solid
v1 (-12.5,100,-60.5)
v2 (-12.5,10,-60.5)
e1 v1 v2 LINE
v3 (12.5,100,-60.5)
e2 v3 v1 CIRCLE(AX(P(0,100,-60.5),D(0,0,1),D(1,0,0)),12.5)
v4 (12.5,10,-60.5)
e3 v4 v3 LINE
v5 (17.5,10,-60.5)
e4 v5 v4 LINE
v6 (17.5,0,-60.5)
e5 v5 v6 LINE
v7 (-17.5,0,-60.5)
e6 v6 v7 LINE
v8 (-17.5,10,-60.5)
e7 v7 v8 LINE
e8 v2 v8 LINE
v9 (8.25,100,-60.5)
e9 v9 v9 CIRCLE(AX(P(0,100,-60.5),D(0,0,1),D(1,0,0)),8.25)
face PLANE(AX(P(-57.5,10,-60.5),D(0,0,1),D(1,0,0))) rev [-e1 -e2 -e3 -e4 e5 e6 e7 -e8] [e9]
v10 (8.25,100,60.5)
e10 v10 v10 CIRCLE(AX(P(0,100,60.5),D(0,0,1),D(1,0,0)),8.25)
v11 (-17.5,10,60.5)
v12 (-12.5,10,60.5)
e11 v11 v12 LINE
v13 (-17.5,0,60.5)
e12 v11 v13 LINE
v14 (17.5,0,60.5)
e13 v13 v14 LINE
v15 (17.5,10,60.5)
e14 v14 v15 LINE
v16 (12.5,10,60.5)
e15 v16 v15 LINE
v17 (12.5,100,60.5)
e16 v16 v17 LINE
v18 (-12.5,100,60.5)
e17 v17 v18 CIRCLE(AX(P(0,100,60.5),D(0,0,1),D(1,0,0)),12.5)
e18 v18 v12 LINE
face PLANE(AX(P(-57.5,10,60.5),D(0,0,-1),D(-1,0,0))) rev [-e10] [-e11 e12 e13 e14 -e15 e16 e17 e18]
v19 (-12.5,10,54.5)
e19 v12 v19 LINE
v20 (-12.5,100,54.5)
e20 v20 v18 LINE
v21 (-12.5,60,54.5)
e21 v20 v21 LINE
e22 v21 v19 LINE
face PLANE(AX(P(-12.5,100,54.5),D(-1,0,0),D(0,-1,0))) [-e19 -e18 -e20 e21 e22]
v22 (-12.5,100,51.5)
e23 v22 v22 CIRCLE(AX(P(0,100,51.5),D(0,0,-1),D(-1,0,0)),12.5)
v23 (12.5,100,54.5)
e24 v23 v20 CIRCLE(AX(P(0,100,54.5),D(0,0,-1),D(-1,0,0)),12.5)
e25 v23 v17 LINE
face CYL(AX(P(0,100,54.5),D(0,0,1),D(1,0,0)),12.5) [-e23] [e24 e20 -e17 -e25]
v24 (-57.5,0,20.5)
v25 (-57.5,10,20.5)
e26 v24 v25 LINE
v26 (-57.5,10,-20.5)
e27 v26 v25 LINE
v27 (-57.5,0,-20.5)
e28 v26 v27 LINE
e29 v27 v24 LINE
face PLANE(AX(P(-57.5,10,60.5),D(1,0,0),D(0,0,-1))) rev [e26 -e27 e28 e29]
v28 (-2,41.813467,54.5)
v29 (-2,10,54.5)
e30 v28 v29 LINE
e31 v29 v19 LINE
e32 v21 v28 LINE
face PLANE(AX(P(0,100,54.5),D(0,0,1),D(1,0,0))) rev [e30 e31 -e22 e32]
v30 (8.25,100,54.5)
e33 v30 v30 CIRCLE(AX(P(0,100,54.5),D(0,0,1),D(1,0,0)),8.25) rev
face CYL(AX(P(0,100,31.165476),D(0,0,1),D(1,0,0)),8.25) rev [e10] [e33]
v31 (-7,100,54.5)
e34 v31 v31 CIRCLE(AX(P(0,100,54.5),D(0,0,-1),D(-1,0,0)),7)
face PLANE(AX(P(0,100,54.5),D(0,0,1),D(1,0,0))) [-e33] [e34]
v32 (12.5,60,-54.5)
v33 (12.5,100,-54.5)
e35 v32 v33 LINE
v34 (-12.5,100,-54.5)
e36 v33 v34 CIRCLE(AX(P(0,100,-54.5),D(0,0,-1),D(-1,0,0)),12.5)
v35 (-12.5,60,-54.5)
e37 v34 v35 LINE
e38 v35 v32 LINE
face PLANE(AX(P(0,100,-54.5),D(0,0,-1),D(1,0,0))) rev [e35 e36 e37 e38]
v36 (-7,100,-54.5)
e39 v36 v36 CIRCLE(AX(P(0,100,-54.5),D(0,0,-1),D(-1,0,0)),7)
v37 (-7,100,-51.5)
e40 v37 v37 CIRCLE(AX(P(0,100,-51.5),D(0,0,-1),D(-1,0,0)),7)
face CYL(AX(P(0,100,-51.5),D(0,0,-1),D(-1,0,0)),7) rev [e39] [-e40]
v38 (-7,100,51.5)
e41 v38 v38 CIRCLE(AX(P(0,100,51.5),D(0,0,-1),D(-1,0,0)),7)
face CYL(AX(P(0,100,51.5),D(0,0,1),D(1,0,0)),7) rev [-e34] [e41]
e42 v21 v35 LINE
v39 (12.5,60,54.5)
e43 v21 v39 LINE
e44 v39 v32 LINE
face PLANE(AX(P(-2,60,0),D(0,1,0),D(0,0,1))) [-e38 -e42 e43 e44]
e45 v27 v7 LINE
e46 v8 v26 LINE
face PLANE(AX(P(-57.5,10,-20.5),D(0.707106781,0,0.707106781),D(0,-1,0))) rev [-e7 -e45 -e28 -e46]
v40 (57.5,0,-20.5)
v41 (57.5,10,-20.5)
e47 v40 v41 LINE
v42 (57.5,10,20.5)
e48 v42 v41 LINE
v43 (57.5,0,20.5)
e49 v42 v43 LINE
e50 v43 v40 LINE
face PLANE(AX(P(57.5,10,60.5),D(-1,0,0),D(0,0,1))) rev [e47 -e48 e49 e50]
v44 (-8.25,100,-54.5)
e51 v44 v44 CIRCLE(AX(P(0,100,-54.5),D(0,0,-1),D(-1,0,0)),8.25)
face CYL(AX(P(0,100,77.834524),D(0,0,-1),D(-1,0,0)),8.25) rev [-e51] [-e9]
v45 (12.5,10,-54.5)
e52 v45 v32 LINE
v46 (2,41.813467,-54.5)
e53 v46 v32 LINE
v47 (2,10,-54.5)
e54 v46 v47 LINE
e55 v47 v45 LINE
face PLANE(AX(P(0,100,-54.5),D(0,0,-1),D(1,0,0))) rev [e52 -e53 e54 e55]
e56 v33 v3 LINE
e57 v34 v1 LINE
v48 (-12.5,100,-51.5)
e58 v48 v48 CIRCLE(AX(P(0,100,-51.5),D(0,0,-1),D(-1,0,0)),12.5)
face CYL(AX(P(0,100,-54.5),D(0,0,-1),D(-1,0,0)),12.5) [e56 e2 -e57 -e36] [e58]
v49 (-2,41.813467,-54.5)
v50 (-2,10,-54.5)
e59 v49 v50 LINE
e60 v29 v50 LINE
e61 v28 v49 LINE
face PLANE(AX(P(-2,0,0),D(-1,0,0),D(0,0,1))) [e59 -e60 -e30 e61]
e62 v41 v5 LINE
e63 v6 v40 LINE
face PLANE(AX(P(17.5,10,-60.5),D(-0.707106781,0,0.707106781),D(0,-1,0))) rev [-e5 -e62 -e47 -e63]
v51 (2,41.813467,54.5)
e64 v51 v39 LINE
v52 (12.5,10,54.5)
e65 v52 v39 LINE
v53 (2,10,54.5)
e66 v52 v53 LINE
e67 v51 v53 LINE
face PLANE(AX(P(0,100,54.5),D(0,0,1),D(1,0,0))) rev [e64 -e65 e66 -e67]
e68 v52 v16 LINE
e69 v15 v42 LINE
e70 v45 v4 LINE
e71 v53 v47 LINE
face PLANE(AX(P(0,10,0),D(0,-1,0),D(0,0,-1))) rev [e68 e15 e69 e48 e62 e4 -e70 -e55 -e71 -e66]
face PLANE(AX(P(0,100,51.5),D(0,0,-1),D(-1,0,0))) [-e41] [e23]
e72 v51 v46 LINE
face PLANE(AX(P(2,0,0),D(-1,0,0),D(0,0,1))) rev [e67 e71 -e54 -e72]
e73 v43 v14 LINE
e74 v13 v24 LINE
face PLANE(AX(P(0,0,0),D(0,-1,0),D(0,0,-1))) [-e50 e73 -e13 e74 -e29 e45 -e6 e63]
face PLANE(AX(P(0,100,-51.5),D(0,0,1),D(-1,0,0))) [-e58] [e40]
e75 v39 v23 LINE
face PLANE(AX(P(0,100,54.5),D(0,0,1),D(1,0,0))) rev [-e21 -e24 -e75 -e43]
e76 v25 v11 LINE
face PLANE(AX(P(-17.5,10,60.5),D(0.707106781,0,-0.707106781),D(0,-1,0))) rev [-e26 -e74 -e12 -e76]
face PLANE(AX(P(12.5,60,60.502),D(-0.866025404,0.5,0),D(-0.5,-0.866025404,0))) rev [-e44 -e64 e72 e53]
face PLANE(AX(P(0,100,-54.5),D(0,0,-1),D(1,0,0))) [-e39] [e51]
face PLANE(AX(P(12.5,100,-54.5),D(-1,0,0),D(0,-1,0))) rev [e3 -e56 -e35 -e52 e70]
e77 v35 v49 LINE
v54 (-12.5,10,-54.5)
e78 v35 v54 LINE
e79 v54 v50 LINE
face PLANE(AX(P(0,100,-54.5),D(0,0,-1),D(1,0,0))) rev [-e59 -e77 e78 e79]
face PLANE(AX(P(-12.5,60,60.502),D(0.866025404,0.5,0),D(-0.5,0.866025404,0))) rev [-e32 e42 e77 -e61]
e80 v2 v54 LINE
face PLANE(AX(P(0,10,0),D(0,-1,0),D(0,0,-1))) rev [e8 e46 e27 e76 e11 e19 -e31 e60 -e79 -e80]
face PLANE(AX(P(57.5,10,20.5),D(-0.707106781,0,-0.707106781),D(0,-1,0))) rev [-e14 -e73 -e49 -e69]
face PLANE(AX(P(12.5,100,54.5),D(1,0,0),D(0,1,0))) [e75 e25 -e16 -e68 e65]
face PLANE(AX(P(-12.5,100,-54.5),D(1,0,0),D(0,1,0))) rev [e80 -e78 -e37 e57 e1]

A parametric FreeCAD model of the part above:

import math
import FreeCAD as App
import Part
import Sketcher

V = App.Vector
Q = App.Units.Quantity


def edges_at(feature, points):
    """Names of the edges that pass closest to the given points."""
    edges = feature.Shape.Edges
    near = lambda p: min(range(len(edges)), key=lambda i: edges[i].distToShape(Part.Vertex(*p))[0])
    return sorted({f"Edge{near(p) + 1}" for p in points})

doc = App.newDocument("Part")
body = doc.addObject("PartDesign::Body", "Body")

# Sketch on XZ plane
sketch1 = body.newObject("Sketcher::SketchObject", "Sketch")
sketch1.AttachmentSupport = (doc.getObject("XZ_Plane"), [""])
sketch1.MapMode = "FlatFace"
sketch1.addGeometry([
    Part.LineSegment(V(-58, -60, 0), V(-58, 60, 0)),
    Part.LineSegment(V(-58, 60, 0), V(58, 60, 0)),
    Part.LineSegment(V(58, 60, 0), V(58, -60, 0)),
    Part.LineSegment(V(58, -60, 0), V(-58, -60, 0)),
], False)
sketch1.addConstraint([
    Sketcher.Constraint("Coincident", 0, 2, 1, 1),
    Sketcher.Constraint("Coincident", 1, 2, 2, 1),
    Sketcher.Constraint("Coincident", 2, 2, 3, 1),
    Sketcher.Constraint("Coincident", 3, 2, 0, 1),
    Sketcher.Constraint("Vertical", 0),
    Sketcher.Constraint("Horizontal", 1),
    Sketcher.Constraint("Vertical", 2),
    Sketcher.Constraint("Horizontal", 3),
    Sketcher.Constraint("Symmetric", 0, 2, 2, 2, -1, 1),
    Sketcher.Constraint("DistanceX", 1, 1, 1, 2, 115.0),
    Sketcher.Constraint("DistanceY", 0, 1, 0, 2, 121.0),
])
pad1 = body.newObject("PartDesign::Pad", "Pad")
pad1.Profile = sketch1
pad1.Length = 10
pad1.Reversed = True

# Sketch on XY plane
sketch2 = body.newObject("Sketcher::SketchObject", "Sketch001")
sketch2.AttachmentSupport = (doc.getObject("XY_Plane"), [""])
sketch2.MapMode = "FlatFace"
sketch2.AttachmentOffset = App.Placement(V(0, 0, 60.5), App.Rotation())
sketch2.addGeometry([
    Part.LineSegment(V(-12, 100, 0), V(-12, 0, 0)),
    Part.LineSegment(V(-12, 0, 0), V(12, 0, 0)),
    Part.LineSegment(V(12, 0, 0), V(12, 100, 0)),
    Part.ArcOfCircle(Part.Circle(V(0, 100, 0), V(0, 0, 1), 12), math.radians(0), math.radians(180)),
], False)
sketch2.addConstraint([
    Sketcher.Constraint("Coincident", 0, 2, 1, 1),
    Sketcher.Constraint("Coincident", 1, 2, 2, 1),
    Sketcher.Constraint("Tangent", 2, 2, 3, 1),
    Sketcher.Constraint("Tangent", 3, 2, 0, 1),
    Sketcher.Constraint("Vertical", 0),
    Sketcher.Constraint("Horizontal", 1),
    Sketcher.Constraint("Vertical", 2),
    Sketcher.Constraint("Symmetric", 0, 2, 1, 2, -1, 1),
    Sketcher.Constraint("Radius", 3, 12.5),
    Sketcher.Constraint("DistanceY", 0, 2, 0, 1, 100.0),
])
pad2 = body.newObject("PartDesign::Pad", "Pad001")
pad2.Profile = sketch2
pad2.Length = 6
pad2.Reversed = True

# Sketch on XY plane
sketch3 = body.newObject("Sketcher::SketchObject", "Sketch002")
sketch3.AttachmentSupport = (doc.getObject("XY_Plane"), [""])
sketch3.MapMode = "FlatFace"
sketch3.AttachmentOffset = App.Placement(V(0, 0, 54.5), App.Rotation())
sketch3.addGeometry([
    Part.Circle(V(0, 100, 0), V(0, 0, 1), 12),
    Part.Circle(V(0, 100, 0), V(0, 0, 1), 7),
], False)
sketch3.addConstraint([
    Sketcher.Constraint("Coincident", 1, 3, 0, 3),
    Sketcher.Constraint("PointOnObject", 0, 3, -2),
    Sketcher.Constraint("Diameter", 0, 25.0),
    Sketcher.Constraint("Diameter", 1, 14.0),
    Sketcher.Constraint("DistanceY", -1, 1, 0, 3, 100.0),
])
pad3 = body.newObject("PartDesign::Pad", "Pad002")
pad3.Profile = sketch3
pad3.Length = 3
pad3.Reversed = True

# Sketch on XY plane
sketch4 = body.newObject("Sketcher::SketchObject", "Sketch003")
sketch4.AttachmentSupport = (doc.getObject("XY_Plane"), [""])
sketch4.MapMode = "FlatFace"
sketch4.AttachmentOffset = App.Placement(V(0, 0, 60.5), App.Rotation())
sketch4.addGeometry(Part.Circle(V(0, 100, 0), V(0, 0, 1), 8), False)
sketch4.addConstraint([
    Sketcher.Constraint("PointOnObject", 0, 3, -2),
    Sketcher.Constraint("Diameter", 0, 16.5),
    Sketcher.Constraint("DistanceY", -1, 1, 0, 3, 100.0),
])
pocket1 = body.newObject("PartDesign::Pocket", "Pocket")
pocket1.Profile = sketch4
pocket1.Length = 6

# Sketch on YZ plane
sketch5 = body.newObject("Sketcher::SketchObject", "Sketch004")
sketch5.AttachmentSupport = (doc.getObject("YZ_Plane"), [""])
sketch5.MapMode = "FlatFace"
sketch5.addGeometry([
    Part.LineSegment(V(60, 54, 0), V(10, 54, 0)),
    Part.LineSegment(V(10, 54, 0), V(10, 0, 0)),
    Part.LineSegment(V(10, 0, 0), V(60, 0, 0)),
    Part.LineSegment(V(60, 0, 0), V(60, 54, 0)),
], False)
sketch5.addConstraint([
    Sketcher.Constraint("Coincident", 0, 2, 1, 1),
    Sketcher.Constraint("Coincident", 1, 2, 2, 1),
    Sketcher.Constraint("Coincident", 2, 2, 3, 1),
    Sketcher.Constraint("Coincident", 3, 2, 0, 1),
    Sketcher.Constraint("Horizontal", 0),
    Sketcher.Constraint("Vertical", 1),
    Sketcher.Constraint("Horizontal", 2),
    Sketcher.Constraint("Vertical", 3),
    Sketcher.Constraint("PointOnObject", 1, 2, -1),
    Sketcher.Constraint("DistanceX", 0, 2, 0, 1, 50.0),
    Sketcher.Constraint("DistanceY", 1, 2, 1, 1, 54.5),
    Sketcher.Constraint("DistanceX", -1, 1, 0, 2, 10.0),
])
pad4 = body.newObject("PartDesign::Pad", "Pad003")
pad4.Profile = sketch5
pad4.Length = 4
pad4.Midplane = True
doc.recompute()

mirrored = body.newObject("PartDesign::Mirrored", "Mirrored")
mirrored.Originals = [pad2, pad3, pocket1, pad4]
mirrored.MirrorPlane = (doc.getObject("XY_Plane"), [""])
body.Tip = mirrored

# Sketch on XY plane
sketch6 = body.newObject("Sketcher::SketchObject", "Sketch005")
sketch6.AttachmentSupport = (doc.getObject("XY_Plane"), [""])
sketch6.MapMode = "FlatFace"
sketch6.AttachmentOffset = App.Placement(V(0, 0, -54.5), App.Rotation())
sketch6.addGeometry([
    Part.LineSegment(V(12, 60, 0), V(2, 60, 0)),
    Part.LineSegment(V(2, 60, 0), V(2, 42, 0)),
    Part.LineSegment(V(2, 42, 0), V(12, 60, 0)),
], False)
sketch6.addConstraint([
    Sketcher.Constraint("Coincident", 0, 2, 1, 1),
    Sketcher.Constraint("Coincident", 1, 2, 2, 1),
    Sketcher.Constraint("Coincident", 2, 2, 0, 1),
    Sketcher.Constraint("Horizontal", 0),
    Sketcher.Constraint("Vertical", 1),
    Sketcher.Constraint("Angle", 2, Q("60 deg")),
    Sketcher.Constraint("Distance", 2, 21.0),
    Sketcher.Constraint("DistanceX", -1, 1, 0, 2, 2.0),
    Sketcher.Constraint("DistanceY", -1, 1, 0, 2, 60.0),
])
pad5 = body.newObject("PartDesign::Pad", "Pad004")
pad5.Profile = sketch6
pad5.Type = "UpToFirst"

# Sketch on XY plane
sketch7 = body.newObject("Sketcher::SketchObject", "Sketch006")
sketch7.AttachmentSupport = (doc.getObject("XY_Plane"), [""])
sketch7.MapMode = "FlatFace"
sketch7.AttachmentOffset = App.Placement(V(0, 0, -54.5), App.Rotation())
sketch7.addGeometry([
    Part.LineSegment(V(-2, 60, 0), V(-12, 60, 0)),
    Part.LineSegment(V(-12, 60, 0), V(-2, 42, 0)),
    Part.LineSegment(V(-2, 42, 0), V(-2, 60, 0)),
], False)
sketch7.addConstraint([
    Sketcher.Constraint("Coincident", 0, 2, 1, 1),
    Sketcher.Constraint("Coincident", 1, 2, 2, 1),
    Sketcher.Constraint("Coincident", 2, 2, 0, 1),
    Sketcher.Constraint("Horizontal", 0),
    Sketcher.Constraint("Vertical", 2),
    Sketcher.Constraint("Angle", 1, Q("-60 deg")),
    Sketcher.Constraint("Distance", 1, 21.0),
    Sketcher.Constraint("DistanceY", -1, 1, 0, 2, 60.0),
    Sketcher.Constraint("DistanceX", 1, 2, -1, 1, 2.0),
])
pad6 = body.newObject("PartDesign::Pad", "Pad005")
pad6.Profile = sketch7
pad6.Type = "UpToFirst"
doc.recompute()

chamfer = body.newObject("PartDesign::Chamfer", "Chamfer")
chamfer.Base = (pad6, edges_at(pad6, [
    (57.5, 5, 60.5),
    (-57.5, 5, 60.5),
    (-57.5, 5, -60.5),
    (57.5, 5, -60.5),
]))
chamfer.Size = 40

doc.recompute()
